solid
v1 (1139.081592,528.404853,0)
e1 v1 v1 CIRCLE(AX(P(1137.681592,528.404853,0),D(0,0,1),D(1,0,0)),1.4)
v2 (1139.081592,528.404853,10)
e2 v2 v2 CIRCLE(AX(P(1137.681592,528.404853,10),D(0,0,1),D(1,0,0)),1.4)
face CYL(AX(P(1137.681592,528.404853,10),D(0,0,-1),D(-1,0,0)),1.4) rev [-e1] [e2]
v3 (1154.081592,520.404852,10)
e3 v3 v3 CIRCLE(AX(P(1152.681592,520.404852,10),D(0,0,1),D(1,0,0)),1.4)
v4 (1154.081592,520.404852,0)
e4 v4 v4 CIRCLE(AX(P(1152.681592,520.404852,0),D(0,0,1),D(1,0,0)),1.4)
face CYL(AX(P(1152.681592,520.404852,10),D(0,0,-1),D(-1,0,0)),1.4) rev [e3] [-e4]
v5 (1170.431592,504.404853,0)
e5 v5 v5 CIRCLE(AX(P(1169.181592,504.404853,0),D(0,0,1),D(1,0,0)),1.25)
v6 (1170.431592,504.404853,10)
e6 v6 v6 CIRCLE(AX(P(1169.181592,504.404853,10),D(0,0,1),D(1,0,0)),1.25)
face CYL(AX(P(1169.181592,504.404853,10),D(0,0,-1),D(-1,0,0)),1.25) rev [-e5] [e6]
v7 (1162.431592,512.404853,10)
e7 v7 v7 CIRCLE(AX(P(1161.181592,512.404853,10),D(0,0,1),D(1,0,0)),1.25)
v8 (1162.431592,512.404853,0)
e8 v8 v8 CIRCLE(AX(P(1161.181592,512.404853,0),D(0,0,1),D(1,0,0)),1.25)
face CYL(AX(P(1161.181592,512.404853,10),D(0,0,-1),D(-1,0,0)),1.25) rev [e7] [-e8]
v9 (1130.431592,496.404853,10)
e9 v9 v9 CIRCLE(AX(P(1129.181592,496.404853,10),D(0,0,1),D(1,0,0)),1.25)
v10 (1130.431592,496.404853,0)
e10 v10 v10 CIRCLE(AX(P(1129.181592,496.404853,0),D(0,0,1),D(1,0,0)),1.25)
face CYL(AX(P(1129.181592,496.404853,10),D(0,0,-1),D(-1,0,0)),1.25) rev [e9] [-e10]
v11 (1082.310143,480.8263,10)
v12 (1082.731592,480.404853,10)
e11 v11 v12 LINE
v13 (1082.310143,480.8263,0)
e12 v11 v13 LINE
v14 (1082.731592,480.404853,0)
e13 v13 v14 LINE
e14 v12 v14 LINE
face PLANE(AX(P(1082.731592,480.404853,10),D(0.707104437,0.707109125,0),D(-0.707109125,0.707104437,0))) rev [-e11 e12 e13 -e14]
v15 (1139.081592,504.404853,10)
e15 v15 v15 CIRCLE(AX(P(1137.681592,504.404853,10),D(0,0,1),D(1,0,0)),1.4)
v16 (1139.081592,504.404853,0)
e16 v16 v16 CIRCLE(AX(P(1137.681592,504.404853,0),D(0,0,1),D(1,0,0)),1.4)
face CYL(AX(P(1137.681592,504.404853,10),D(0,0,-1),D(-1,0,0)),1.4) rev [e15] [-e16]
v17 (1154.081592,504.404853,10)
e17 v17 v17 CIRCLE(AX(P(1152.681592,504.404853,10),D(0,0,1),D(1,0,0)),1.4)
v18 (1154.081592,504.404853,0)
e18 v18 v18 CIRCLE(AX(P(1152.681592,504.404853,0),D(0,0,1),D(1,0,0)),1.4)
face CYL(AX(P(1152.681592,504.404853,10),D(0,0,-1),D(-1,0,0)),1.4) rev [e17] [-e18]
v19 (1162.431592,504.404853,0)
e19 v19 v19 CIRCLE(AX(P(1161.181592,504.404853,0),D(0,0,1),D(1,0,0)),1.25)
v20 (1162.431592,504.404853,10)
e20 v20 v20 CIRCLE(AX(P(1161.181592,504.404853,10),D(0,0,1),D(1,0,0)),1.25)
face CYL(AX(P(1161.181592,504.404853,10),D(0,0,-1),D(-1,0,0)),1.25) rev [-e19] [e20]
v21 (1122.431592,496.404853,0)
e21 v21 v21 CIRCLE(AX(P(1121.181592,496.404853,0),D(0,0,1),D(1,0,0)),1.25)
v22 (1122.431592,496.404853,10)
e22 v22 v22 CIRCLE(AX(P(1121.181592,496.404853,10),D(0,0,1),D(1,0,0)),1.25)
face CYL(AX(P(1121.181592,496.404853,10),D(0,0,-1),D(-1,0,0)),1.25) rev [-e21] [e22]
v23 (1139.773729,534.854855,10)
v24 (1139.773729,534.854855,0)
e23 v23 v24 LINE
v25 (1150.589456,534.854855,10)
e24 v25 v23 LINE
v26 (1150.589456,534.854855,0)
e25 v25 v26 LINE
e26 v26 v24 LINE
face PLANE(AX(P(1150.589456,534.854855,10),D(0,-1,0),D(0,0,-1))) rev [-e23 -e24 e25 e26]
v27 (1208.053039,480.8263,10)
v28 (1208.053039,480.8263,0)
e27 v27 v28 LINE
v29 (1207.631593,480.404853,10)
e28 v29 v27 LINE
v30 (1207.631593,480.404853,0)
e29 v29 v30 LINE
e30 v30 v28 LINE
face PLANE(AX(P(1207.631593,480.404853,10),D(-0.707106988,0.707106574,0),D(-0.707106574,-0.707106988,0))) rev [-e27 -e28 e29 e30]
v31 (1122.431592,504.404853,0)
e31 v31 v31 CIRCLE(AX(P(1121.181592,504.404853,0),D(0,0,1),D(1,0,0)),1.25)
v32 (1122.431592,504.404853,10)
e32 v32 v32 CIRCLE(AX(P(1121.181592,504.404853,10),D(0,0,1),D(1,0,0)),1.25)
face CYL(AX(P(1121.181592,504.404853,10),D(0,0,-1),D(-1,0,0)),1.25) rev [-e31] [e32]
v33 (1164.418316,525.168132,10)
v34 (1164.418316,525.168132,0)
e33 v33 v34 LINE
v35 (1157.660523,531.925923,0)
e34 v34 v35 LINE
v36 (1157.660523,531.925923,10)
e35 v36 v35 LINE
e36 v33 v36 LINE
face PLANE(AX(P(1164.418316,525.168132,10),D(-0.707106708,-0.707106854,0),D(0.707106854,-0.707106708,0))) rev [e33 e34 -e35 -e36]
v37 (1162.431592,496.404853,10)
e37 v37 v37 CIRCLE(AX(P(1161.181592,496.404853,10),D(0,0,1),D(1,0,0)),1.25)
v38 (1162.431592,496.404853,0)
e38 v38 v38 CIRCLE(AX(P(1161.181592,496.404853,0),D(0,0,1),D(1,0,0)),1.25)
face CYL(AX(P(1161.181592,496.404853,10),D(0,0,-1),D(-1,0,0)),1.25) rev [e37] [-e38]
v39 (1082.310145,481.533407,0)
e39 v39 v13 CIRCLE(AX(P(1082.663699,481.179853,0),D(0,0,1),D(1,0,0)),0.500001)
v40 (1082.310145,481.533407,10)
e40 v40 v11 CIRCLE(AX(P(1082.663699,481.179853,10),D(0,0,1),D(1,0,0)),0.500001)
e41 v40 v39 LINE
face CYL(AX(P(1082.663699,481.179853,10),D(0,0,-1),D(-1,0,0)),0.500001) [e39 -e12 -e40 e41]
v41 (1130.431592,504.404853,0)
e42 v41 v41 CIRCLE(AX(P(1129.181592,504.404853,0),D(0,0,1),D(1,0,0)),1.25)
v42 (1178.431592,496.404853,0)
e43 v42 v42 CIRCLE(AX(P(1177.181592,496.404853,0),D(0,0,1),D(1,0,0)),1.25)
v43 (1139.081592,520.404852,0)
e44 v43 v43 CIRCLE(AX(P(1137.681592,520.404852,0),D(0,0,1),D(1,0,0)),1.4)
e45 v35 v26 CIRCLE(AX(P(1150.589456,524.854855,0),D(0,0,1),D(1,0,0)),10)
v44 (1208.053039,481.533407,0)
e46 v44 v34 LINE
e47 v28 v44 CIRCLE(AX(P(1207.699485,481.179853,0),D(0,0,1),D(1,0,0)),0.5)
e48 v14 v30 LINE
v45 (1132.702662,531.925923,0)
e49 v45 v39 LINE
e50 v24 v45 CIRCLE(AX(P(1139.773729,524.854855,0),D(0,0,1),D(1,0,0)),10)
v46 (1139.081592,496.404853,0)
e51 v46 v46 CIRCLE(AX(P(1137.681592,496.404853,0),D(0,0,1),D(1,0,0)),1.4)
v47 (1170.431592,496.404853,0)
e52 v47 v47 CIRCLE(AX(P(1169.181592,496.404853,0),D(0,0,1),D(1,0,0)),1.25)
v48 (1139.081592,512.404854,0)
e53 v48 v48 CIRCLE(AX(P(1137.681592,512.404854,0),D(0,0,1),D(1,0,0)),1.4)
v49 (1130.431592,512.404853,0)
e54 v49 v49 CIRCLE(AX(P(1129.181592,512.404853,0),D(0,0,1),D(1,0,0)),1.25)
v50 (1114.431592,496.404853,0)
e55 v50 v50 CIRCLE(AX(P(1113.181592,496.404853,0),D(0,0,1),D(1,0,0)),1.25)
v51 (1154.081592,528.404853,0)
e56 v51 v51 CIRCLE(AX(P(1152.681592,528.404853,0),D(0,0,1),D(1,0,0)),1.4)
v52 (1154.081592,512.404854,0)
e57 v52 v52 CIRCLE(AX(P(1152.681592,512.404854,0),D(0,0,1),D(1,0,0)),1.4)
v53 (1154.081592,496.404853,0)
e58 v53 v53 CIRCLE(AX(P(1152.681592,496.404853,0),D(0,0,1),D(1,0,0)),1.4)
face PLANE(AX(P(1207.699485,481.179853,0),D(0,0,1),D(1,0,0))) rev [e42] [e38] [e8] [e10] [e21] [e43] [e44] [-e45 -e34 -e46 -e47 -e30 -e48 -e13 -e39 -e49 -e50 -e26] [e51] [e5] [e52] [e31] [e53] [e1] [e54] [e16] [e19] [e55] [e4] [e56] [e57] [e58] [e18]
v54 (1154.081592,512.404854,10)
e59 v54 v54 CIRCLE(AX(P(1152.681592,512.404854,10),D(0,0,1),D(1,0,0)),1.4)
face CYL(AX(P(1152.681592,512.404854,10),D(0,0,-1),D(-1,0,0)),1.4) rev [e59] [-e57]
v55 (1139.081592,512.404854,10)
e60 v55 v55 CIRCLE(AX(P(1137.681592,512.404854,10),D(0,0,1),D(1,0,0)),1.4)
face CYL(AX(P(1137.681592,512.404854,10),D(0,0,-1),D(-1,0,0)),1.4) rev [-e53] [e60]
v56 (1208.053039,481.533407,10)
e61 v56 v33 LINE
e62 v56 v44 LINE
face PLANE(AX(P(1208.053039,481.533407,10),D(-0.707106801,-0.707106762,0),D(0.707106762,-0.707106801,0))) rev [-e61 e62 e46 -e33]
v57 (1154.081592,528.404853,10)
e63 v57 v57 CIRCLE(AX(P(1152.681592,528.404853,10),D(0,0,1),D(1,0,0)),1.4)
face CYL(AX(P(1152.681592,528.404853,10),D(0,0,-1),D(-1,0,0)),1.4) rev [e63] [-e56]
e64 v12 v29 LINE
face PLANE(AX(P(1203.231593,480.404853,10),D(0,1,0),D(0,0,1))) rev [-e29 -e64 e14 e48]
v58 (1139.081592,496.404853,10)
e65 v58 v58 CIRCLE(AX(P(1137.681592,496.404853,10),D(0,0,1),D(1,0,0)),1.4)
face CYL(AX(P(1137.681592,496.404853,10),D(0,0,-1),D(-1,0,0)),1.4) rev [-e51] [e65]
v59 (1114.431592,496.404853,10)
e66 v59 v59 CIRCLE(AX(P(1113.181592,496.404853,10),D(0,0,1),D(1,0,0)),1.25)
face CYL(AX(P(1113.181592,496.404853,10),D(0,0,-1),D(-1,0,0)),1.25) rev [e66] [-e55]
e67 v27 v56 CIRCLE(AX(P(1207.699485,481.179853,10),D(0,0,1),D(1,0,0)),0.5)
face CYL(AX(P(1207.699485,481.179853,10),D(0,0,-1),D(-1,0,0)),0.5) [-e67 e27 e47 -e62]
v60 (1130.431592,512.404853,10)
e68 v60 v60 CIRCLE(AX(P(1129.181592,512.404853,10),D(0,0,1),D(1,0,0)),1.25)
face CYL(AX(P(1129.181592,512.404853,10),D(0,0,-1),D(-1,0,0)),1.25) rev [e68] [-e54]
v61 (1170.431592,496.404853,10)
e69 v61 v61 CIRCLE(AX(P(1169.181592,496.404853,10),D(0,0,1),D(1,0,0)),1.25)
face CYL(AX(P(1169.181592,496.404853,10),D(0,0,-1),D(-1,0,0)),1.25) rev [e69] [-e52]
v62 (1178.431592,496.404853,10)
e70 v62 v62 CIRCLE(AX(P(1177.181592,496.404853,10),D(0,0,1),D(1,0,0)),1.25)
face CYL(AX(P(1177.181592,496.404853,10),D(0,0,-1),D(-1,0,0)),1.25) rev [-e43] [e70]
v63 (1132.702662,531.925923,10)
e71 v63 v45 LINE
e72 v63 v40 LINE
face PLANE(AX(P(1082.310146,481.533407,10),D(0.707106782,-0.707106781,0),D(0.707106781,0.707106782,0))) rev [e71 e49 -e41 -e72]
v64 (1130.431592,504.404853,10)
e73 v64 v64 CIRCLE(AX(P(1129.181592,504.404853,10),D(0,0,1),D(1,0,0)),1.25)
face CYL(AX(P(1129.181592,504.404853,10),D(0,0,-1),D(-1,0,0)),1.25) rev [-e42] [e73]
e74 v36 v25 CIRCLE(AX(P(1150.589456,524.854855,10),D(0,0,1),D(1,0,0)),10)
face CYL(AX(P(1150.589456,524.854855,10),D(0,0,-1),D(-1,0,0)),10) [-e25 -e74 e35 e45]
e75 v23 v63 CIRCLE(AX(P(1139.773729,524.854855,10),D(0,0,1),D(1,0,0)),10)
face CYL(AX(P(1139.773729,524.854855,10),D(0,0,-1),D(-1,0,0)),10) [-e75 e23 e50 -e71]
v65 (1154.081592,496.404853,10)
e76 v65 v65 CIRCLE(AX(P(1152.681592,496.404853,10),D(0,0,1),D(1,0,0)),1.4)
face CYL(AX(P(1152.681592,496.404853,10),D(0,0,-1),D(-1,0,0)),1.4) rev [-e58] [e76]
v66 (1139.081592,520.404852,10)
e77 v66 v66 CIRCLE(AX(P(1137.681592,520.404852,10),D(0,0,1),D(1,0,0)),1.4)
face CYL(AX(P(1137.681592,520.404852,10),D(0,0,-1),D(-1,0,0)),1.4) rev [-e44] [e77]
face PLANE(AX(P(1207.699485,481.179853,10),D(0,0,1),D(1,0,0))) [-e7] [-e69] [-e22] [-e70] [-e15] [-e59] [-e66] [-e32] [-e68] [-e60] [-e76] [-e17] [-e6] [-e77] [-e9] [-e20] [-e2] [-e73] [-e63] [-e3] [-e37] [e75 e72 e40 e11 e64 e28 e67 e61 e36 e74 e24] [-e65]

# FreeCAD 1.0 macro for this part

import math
import FreeCAD as App
import Part
import Sketcher

V = App.Vector

doc = App.newDocument("Part")
body = doc.addObject("PartDesign::Body", "Body")

# Sketch on XY plane
sketch1 = body.newObject("Sketcher::SketchObject", "Sketch")
sketch1.AttachmentSupport = (doc.getObject("XY_Plane"), [""])
sketch1.MapMode = "FlatFace"
sketch1.addGeometry([
    Part.LineSegment(V(1082.3, 480.8, 0), V(1082.7, 480.4, 0)),  # 0
    Part.LineSegment(V(1082.7, 480.4, 0), V(1207.6, 480.4, 0)),  # 1
    Part.LineSegment(V(1207.6, 480.4, 0), V(1208.1, 480.8, 0)),  # 2
    Part.ArcOfCircle(Part.Circle(V(1207.7, 481.2, 0), V(0, 0, 1), 0.5), math.radians(-45), math.radians(45)),  # 3
    Part.LineSegment(V(1208.1, 481.5, 0), V(1164.4, 525.2, 0)),  # 4
    Part.LineSegment(V(1164.4, 525.2, 0), V(1157.7, 531.9, 0)),  # 5
    Part.ArcOfCircle(Part.Circle(V(1150.6, 524.9, 0), V(0, 0, 1), 10), math.radians(45), math.radians(90)),  # 6
    Part.LineSegment(V(1150.6, 534.9, 0), V(1139.8, 534.9, 0)),  # 7
    Part.ArcOfCircle(Part.Circle(V(1139.8, 524.9, 0), V(0, 0, 1), 10), math.radians(90), math.radians(135)),  # 8
    Part.LineSegment(V(1132.7, 531.9, 0), V(1082.3, 481.5, 0)),  # 9
    Part.ArcOfCircle(Part.Circle(V(1082.7, 481.2, 0), V(0, 0, 1), 0.5), math.radians(135), math.radians(225)),  # 10
    Part.Circle(V(1177.2, 496.4, 0), V(0, 0, 1), 1.2),  # 11
    Part.Circle(V(1169.2, 496.4, 0), V(0, 0, 1), 1.2),  # 12
    Part.Circle(V(1161.2, 496.4, 0), V(0, 0, 1), 1.2),  # 13
    Part.Circle(V(1152.7, 496.4, 0), V(0, 0, 1), 1.4),  # 14
    Part.Circle(V(1169.2, 504.4, 0), V(0, 0, 1), 1.2),  # 15
    Part.Circle(V(1161.2, 504.4, 0), V(0, 0, 1), 1.2),  # 16
    Part.Circle(V(1152.7, 504.4, 0), V(0, 0, 1), 1.4),  # 17
    Part.Circle(V(1137.7, 496.4, 0), V(0, 0, 1), 1.4),  # 18
    Part.Circle(V(1129.2, 496.4, 0), V(0, 0, 1), 1.2),  # 19
    Part.Circle(V(1121.2, 496.4, 0), V(0, 0, 1), 1.2),  # 20
    Part.Circle(V(1113.2, 496.4, 0), V(0, 0, 1), 1.2),  # 21
    Part.Circle(V(1137.7, 504.4, 0), V(0, 0, 1), 1.4),  # 22
    Part.Circle(V(1129.2, 504.4, 0), V(0, 0, 1), 1.2),  # 23
    Part.Circle(V(1121.2, 504.4, 0), V(0, 0, 1), 1.2),  # 24
    Part.Circle(V(1161.2, 512.4, 0), V(0, 0, 1), 1.2),  # 25
    Part.Circle(V(1152.7, 512.4, 0), V(0, 0, 1), 1.4),  # 26
    Part.Circle(V(1152.7, 520.4, 0), V(0, 0, 1), 1.4),  # 27
    Part.Circle(V(1152.7, 528.4, 0), V(0, 0, 1), 1.4),  # 28
    Part.Circle(V(1137.7, 512.4, 0), V(0, 0, 1), 1.4),  # 29
    Part.Circle(V(1129.2, 512.4, 0), V(0, 0, 1), 1.2),  # 30
    Part.Circle(V(1137.7, 520.4, 0), V(0, 0, 1), 1.4),  # 31
    Part.Circle(V(1137.7, 528.4, 0), V(0, 0, 1), 1.4),  # 32
], False)
sketch1.addConstraint([
    Sketcher.Constraint("Coincident", 0, 2, 1, 1),
    Sketcher.Constraint("Coincident", 1, 2, 2, 1),
    Sketcher.Constraint("Tangent", 2, 2, 3, 1),
    Sketcher.Constraint("Tangent", 3, 2, 4, 1),
    Sketcher.Constraint("Coincident", 4, 2, 5, 1),
    Sketcher.Constraint("Tangent", 5, 2, 6, 1),
    Sketcher.Constraint("Tangent", 6, 2, 7, 1),
    Sketcher.Constraint("Tangent", 7, 2, 8, 1),
    Sketcher.Constraint("Tangent", 8, 2, 9, 1),
    Sketcher.Constraint("Coincident", 9, 2, 10, 1),
    Sketcher.Constraint("Coincident", 10, 2, 0, 1),
    Sketcher.Constraint("Horizontal", 1),
    Sketcher.Constraint("Horizontal", 7),
    Sketcher.Constraint("Equal", 6, 8),
    Sketcher.Constraint("Equal", 11, 12),
    Sketcher.Constraint("Equal", 12, 13),
    Sketcher.Constraint("Equal", 13, 15),
    Sketcher.Constraint("Equal", 15, 16),
    Sketcher.Constraint("Equal", 14, 17),
    Sketcher.Constraint("Equal", 17, 18),
    Sketcher.Constraint("Equal", 16, 19),
    Sketcher.Constraint("Equal", 19, 20),
    Sketcher.Constraint("Equal", 20, 21),
    Sketcher.Constraint("Equal", 18, 22),
    Sketcher.Constraint("Equal", 21, 23),
    Sketcher.Constraint("Equal", 23, 24),
    Sketcher.Constraint("Equal", 24, 25),
    Sketcher.Constraint("Equal", 22, 26),
    Sketcher.Constraint("Equal", 26, 27),
    Sketcher.Constraint("Equal", 27, 28),
    Sketcher.Constraint("Equal", 28, 29),
    Sketcher.Constraint("Equal", 25, 30),
    Sketcher.Constraint("Equal", 29, 31),
    Sketcher.Constraint("Equal", 31, 32),
    Sketcher.Constraint("Perpendicular", 2, 4),
    Sketcher.Constraint("Parallel", 4, 5),
    Sketcher.Constraint("Perpendicular", 5, 9),
    Sketcher.Constraint("Horizontal", 3, 3, 10, 3),
    Sketcher.Constraint("Horizontal", 11, 3, 12, 3),
    Sketcher.Constraint("Horizontal", 12, 3, 13, 3),
    Sketcher.Constraint("Horizontal", 13, 3, 14, 3),
    Sketcher.Constraint("Horizontal", 15, 3, 16, 3),
    Sketcher.Constraint("Horizontal", 16, 3, 17, 3),
    Sketcher.Constraint("Horizontal", 14, 3, 18, 3),
    Sketcher.Constraint("Horizontal", 18, 3, 19, 3),
    Sketcher.Constraint("Horizontal", 19, 3, 20, 3),
    Sketcher.Constraint("Horizontal", 20, 3, 21, 3),
    Sketcher.Constraint("Horizontal", 17, 3, 22, 3),
    Sketcher.Constraint("Horizontal", 22, 3, 23, 3),
    Sketcher.Constraint("Horizontal", 23, 3, 24, 3),
    Sketcher.Constraint("Horizontal", 25, 3, 26, 3),
    Sketcher.Constraint("Horizontal", 26, 3, 29, 3),
    Sketcher.Constraint("Horizontal", 29, 3, 30, 3),
    Sketcher.Constraint("Horizontal", 27, 3, 31, 3),
    Sketcher.Constraint("Horizontal", 28, 3, 32, 3),
    Sketcher.Constraint("Horizontal", 5, 2, 8, 2),
    Sketcher.Constraint("Horizontal", 3, 2, 9, 2),
    Sketcher.Constraint("Horizontal", 2, 2, 10, 2),
    Sketcher.Constraint("Vertical", 12, 3, 15, 3),
    Sketcher.Constraint("Vertical", 13, 3, 16, 3),
    Sketcher.Constraint("Vertical", 14, 3, 17, 3),
    Sketcher.Constraint("Vertical", 18, 3, 22, 3),
    Sketcher.Constraint("Vertical", 19, 3, 23, 3),
    Sketcher.Constraint("Vertical", 20, 3, 24, 3),
    Sketcher.Constraint("Vertical", 16, 3, 25, 3),
    Sketcher.Constraint("Vertical", 17, 3, 26, 3),
    Sketcher.Constraint("Vertical", 26, 3, 27, 3),
    Sketcher.Constraint("Vertical", 27, 3, 28, 3),
    Sketcher.Constraint("Vertical", 22, 3, 29, 3),
    Sketcher.Constraint("Vertical", 23, 3, 30, 3),
    Sketcher.Constraint("Vertical", 29, 3, 31, 3),
    Sketcher.Constraint("Vertical", 31, 3, 32, 3),
    Sketcher.Constraint("Radius", 6, 10.0),
    Sketcher.Constraint("Diameter", 11, 2.5),
    Sketcher.Constraint("Diameter", 14, 2.8),
    Sketcher.Constraint("Radius", 3, 0.5),
    Sketcher.Constraint("DistanceX", 1, 1, 1, 2, 124.9),
    Sketcher.Constraint("DistanceX", 12, 3, 11, 3, 8.0),
    Sketcher.Constraint("DistanceX", 13, 3, 12, 3, 8.0),
    Sketcher.Constraint("DistanceY", 12, 3, 15, 3, 8.0),
    Sketcher.Constraint("DistanceX", 18, 3, 14, 3, 15.0),
    Sketcher.Constraint("DistanceX", 19, 3, 13, 3, 32.0),
    Sketcher.Constraint("DistanceX", 20, 3, 19, 3, 8.0),
    Sketcher.Constraint("DistanceX", 21, 3, 20, 3, 8.0),
    Sketcher.Constraint("DistanceY", 16, 3, 25, 3, 8.0),
    Sketcher.Constraint("DistanceY", 25, 3, 27, 3, 7.999998),
    Sketcher.Constraint("DistanceY", 27, 3, 28, 3, 8.000001),
    Sketcher.Constraint("DistanceY", 0, 2, 21, 3, 16.0),
    Sketcher.Constraint("DistanceX", 14, 3, 13, 3, 8.5),
    Sketcher.Constraint("DistanceY", 11, 3, 6, 3, 28.450002),
    Sketcher.Constraint("DistanceX", 0, 2, 21, 3, 30.45),
    Sketcher.Constraint("Radius", 10, 0.500003),
    Sketcher.Constraint("DistanceY", 3, 3, 6, 3, 43.675002),
    Sketcher.Constraint("DistanceY", -1, 1, 2, 2, 480.8263),
    Sketcher.Constraint("Distance", 4, 61.708818),
    Sketcher.Constraint("DistanceX", 7, 2, 7, 1, 10.815727),
    Sketcher.Constraint("DistanceX", -1, 1, 8, 3, 1139.773729),
])
pad1 = body.newObject("PartDesign::Pad", "Pad")
pad1.Profile = sketch1
pad1.Length = 10

doc.recompute()
